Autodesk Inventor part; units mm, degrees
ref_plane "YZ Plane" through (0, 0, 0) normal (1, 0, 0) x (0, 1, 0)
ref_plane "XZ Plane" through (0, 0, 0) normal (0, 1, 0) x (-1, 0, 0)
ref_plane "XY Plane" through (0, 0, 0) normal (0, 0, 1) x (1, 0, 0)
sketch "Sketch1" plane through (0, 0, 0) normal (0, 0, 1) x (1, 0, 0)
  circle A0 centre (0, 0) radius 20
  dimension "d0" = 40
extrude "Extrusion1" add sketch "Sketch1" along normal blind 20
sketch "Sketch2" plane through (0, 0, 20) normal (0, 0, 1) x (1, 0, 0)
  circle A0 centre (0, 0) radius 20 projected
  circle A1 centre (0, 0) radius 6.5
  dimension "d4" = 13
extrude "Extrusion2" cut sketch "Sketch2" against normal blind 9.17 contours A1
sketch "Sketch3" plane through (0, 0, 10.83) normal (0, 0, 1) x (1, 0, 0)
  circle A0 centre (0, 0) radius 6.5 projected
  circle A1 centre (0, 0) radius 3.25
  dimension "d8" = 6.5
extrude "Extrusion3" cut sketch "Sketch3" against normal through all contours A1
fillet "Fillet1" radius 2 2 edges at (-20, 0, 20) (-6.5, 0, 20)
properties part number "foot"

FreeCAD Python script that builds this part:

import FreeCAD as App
import Part
import Sketcher
from FreeCAD import Vector


def edges_at(feature, points):
    """Names of the edges that pass closest to the given points."""
    edges = feature.Shape.Edges
    near = lambda p: min(range(len(edges)), key=lambda i: edges[i].distToShape(Part.Vertex(*p))[0])
    return sorted({f"Edge{near(p) + 1}" for p in points})

doc = App.newDocument("Part")
body = doc.addObject("PartDesign::Body", "Body")

# Sketch on XY plane
sketch1 = body.newObject("Sketcher::SketchObject", "Sketch")
sketch1.AttachmentSupport = (doc.getObject("XY_Plane"), [""])
sketch1.MapMode = "FlatFace"
sketch1.addGeometry(Part.Circle(Vector(0, 0, 0), Vector(0, 0, 1), 20), False)
sketch1.addConstraint(Sketcher.Constraint("Coincident", 0, 3, -1, 1))
sketch1.addConstraint(Sketcher.Constraint("Diameter", 0, 40.0))
pad1 = body.newObject("PartDesign::Pad", "Pad")
pad1.Profile = sketch1
pad1.Length = 20

# Sketch on XY plane
sketch2 = body.newObject("Sketcher::SketchObject", "Sketch001")
sketch2.AttachmentSupport = (doc.getObject("XY_Plane"), [""])
sketch2.MapMode = "FlatFace"
sketch2.AttachmentOffset = App.Placement(Vector(0, 0, 20), App.Rotation())
sketch2.addGeometry(Part.Circle(Vector(0, 0, 0), Vector(0, 0, 1), 6.5), False)
sketch2.addConstraint(Sketcher.Constraint("Coincident", 0, 3, -1, 1))
sketch2.addConstraint(Sketcher.Constraint("Diameter", 0, 13.0))
pocket1 = body.newObject("PartDesign::Pocket", "Pocket")
pocket1.Profile = sketch2
pocket1.Length = 9.17

# Sketch on XY plane
sketch3 = body.newObject("Sketcher::SketchObject", "Sketch002")
sketch3.AttachmentSupport = (doc.getObject("XY_Plane"), [""])
sketch3.MapMode = "FlatFace"
sketch3.AttachmentOffset = App.Placement(Vector(0, 0, 10.83), App.Rotation())
sketch3.addGeometry(Part.Circle(Vector(0, 0, 0), Vector(0, 0, 1), 3.25), False)
sketch3.addConstraint(Sketcher.Constraint("Coincident", 0, 3, -1, 1))
sketch3.addConstraint(Sketcher.Constraint("Diameter", 0, 6.5))
pocket2 = body.newObject("PartDesign::Pocket", "Pocket001")
pocket2.Profile = sketch3
pocket2.Type = "ThroughAll"
doc.recompute()

fillet = body.newObject("PartDesign::Fillet", "Fillet")
fillet.Base = (pocket2, edges_at(pocket2, [(-20, 0, 20), (-6.5, 0, 20)]))
fillet.Radius = 2

doc.recompute()
